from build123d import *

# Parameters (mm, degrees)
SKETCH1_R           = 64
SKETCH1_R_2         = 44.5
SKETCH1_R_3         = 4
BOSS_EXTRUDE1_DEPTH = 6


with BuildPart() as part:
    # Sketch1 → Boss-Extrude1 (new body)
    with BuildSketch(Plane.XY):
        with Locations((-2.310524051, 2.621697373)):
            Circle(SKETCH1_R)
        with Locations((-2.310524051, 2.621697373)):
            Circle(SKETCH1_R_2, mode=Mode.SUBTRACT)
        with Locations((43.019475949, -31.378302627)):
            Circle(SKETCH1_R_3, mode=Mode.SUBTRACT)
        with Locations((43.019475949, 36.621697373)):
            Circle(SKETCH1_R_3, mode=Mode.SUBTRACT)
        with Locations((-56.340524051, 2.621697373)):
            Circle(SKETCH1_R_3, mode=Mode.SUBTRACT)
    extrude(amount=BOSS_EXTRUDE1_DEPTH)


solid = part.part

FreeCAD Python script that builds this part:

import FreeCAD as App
import Part
import Sketcher

V = App.Vector
Q = App.Units.Quantity

doc = App.newDocument("Part")
params = doc.addObject("Spreadsheet::Sheet", "Params")
for row, (alias, value) in enumerate([
    ("sketch1_diameter", "128 mm"),
    ("sketch1_diameter2", "8 mm"),
    ("sketch1_diameter3", "89 mm"),
    ("pad1_length", "6 mm"),
], start=1):
    params.set(f"A{row}", alias)
    params.set(f"B{row}", "=" + value)
    params.setAlias(f"B{row}", alias)

body = doc.addObject("PartDesign::Body", "Body")

sketch1 = body.newObject("Sketcher::SketchObject", "Sketch")
sketch1.AttachmentSupport = (doc.getObject("XY_Plane"), [""])
sketch1.MapMode = "FlatFace"
sketch1.addGeometry(Part.Circle(V(-2.3, 2.6, 0), V(0, 0, 1), 64), False)
sketch1.addGeometry(Part.Circle(V(43, -31.4, 0), V(0, 0, 1), 4), False)
sketch1.addGeometry(Part.Circle(V(-56.3, 2.6, 0), V(0, 0, 1), 4), False)
sketch1.addGeometry(Part.Circle(V(-2.3, 2.6, 0), V(0, 0, 1), 44.5), False)
sketch1.addGeometry(Part.Circle(V(43, 36.6, 0), V(0, 0, 1), 4), False)
sketch1.addConstraint(Sketcher.Constraint("Coincident", 3, 3, 0, 3))
sketch1.addConstraint(Sketcher.Constraint("Equal", 1, 2))
sketch1.addConstraint(Sketcher.Constraint("Equal", 2, 4))
sketch1.addConstraint(Sketcher.Constraint("Horizontal", 0, 3, 2, 3))
sketch1.addConstraint(Sketcher.Constraint("Vertical", 1, 3, 4, 3))
sketch1.addConstraint(Sketcher.Constraint("Diameter", 0, Q("128 mm")))
sketch1.addConstraint(Sketcher.Constraint("Diameter", 1, Q("8 mm")))
sketch1.addConstraint(Sketcher.Constraint("Diameter", 3, Q("89 mm")))
sketch1.addConstraint(Sketcher.Constraint("DistanceY", 1, 3, 0, 3, Q("34 mm")))
sketch1.addConstraint(Sketcher.Constraint("DistanceY", 0, 3, 4, 3, Q("34 mm")))
sketch1.addConstraint(Sketcher.Constraint("DistanceX", 0, 3, 1, 3, Q("45.33 mm")))
sketch1.addConstraint(Sketcher.Constraint("DistanceX", 2, 3, 0, 3, Q("54.03 mm")))
sketch1.addConstraint(Sketcher.Constraint("DistanceX", 0, 3, -1, 1, Q("2.310524 mm")))
sketch1.addConstraint(Sketcher.Constraint("DistanceY", -1, 1, 0, 3, Q("2.621697 mm")))
sketch1.setExpression("Constraints[5]", "Params.sketch1_diameter")
sketch1.setExpression("Constraints[6]", "Params.sketch1_diameter2")
sketch1.setExpression("Constraints[7]", "Params.sketch1_diameter3")
pad1 = body.newObject("PartDesign::Pad", "Pad")
pad1.Profile = sketch1
pad1.setExpression("Length", "Params.pad1_length")

doc.recompute()
